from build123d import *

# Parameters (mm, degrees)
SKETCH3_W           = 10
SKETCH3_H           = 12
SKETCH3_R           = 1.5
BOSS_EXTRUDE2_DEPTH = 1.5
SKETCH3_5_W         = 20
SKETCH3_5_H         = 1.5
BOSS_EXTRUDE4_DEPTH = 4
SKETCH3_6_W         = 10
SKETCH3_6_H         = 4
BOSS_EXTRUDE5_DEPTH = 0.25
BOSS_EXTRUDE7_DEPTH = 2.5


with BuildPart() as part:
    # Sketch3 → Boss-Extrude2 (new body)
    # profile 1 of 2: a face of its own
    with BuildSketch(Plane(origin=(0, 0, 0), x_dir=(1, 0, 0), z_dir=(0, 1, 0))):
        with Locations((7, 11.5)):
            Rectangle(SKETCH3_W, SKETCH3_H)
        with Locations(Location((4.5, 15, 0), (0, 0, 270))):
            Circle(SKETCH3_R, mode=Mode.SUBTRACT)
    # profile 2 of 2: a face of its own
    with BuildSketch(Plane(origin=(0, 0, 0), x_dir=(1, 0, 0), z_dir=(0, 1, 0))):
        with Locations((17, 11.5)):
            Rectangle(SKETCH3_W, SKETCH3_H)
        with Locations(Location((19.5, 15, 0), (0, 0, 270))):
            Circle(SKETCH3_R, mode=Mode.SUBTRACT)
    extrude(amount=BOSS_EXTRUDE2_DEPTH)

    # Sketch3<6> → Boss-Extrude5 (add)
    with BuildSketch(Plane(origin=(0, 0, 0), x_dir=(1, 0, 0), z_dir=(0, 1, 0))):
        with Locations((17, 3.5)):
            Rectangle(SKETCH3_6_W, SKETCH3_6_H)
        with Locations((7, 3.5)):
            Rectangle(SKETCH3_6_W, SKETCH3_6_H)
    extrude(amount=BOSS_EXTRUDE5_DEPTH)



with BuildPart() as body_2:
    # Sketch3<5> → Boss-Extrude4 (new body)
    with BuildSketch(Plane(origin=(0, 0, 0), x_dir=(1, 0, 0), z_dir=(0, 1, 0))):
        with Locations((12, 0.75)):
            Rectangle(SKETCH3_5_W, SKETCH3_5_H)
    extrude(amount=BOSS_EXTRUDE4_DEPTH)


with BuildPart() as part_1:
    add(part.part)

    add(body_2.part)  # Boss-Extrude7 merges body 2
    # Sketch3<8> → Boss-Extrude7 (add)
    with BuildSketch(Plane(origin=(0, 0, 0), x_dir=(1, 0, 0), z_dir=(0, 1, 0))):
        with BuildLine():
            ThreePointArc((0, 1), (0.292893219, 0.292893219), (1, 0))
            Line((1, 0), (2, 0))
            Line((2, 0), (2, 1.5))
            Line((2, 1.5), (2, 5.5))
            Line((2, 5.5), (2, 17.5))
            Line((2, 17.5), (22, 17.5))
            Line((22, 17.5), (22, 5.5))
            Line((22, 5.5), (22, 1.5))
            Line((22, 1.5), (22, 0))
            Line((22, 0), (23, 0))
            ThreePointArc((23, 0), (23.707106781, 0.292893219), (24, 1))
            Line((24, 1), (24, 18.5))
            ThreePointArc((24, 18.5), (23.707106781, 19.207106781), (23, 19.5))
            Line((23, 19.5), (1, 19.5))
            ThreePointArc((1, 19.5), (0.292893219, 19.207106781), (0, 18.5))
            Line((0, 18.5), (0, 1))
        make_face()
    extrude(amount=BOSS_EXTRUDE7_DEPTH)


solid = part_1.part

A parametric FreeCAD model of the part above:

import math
import FreeCAD as App
import Part
import Sketcher
from FreeCAD import Vector
Q = App.Units.Quantity

doc = App.newDocument("Part")
params = doc.addObject("Spreadsheet::Sheet", "Params")
for row, (alias, value) in enumerate([
    ("sketch1_diameter", "3 mm"),
    ("sketch1_width", "20 mm"),
    ("sketch1_height", "12 mm"),
    ("pad1_length", "1.5 mm"),
    ("sketch2_width", "20 mm"),
    ("sketch2_height", "4 mm"),
    ("pad2_length", "0.25 mm"),
    ("sketch3_width", "20 mm"),
    ("sketch3_height", "1.5 mm"),
    ("pad3_length", "4 mm"),
    ("sketch4_radius", "1 mm"),
    ("sketch4_width", "1 mm"),
    ("sketch4_width2", "20 mm"),
    ("sketch4_height", "17.5 mm"),
    ("pad4_length", "2.5 mm"),
], start=1):
    params.set(f"A{row}", alias)
    params.set(f"B{row}", "=" + value)
    params.setAlias(f"B{row}", alias)

body = doc.addObject("PartDesign::Body", "Body")

# Sketch on XZ plane
sketch1 = body.newObject("Sketcher::SketchObject", "Sketch")
sketch1.AttachmentSupport = (doc.getObject("XZ_Plane"), [""])
sketch1.MapMode = "FlatFace"
sketch1.addGeometry(Part.LineSegment(Vector(2, -17.5, 0), Vector(2, -5.5, 0)), False)
sketch1.addGeometry(Part.LineSegment(Vector(2, -5.5, 0), Vector(22, -5.5, 0)), False)
sketch1.addGeometry(Part.LineSegment(Vector(22, -5.5, 0), Vector(22, -17.5, 0)), False)
sketch1.addGeometry(Part.LineSegment(Vector(22, -17.5, 0), Vector(2, -17.5, 0)), False)
sketch1.addGeometry(Part.Circle(Vector(4.5, -15, 0), Vector(0, 0, 1), 1.5), False)
sketch1.addGeometry(Part.Circle(Vector(19.5, -15, 0), Vector(0, 0, 1), 1.5), False)
sketch1.addConstraint(Sketcher.Constraint("Coincident", 0, 2, 1, 1))
sketch1.addConstraint(Sketcher.Constraint("Coincident", 1, 2, 2, 1))
sketch1.addConstraint(Sketcher.Constraint("Coincident", 2, 2, 3, 1))
sketch1.addConstraint(Sketcher.Constraint("Coincident", 3, 2, 0, 1))
sketch1.addConstraint(Sketcher.Constraint("Vertical", 0))
sketch1.addConstraint(Sketcher.Constraint("Horizontal", 1))
sketch1.addConstraint(Sketcher.Constraint("Vertical", 2))
sketch1.addConstraint(Sketcher.Constraint("Horizontal", 3))
sketch1.addConstraint(Sketcher.Constraint("Equal", 4, 5))
sketch1.addConstraint(Sketcher.Constraint("Horizontal", 4, 3, 5, 3))
sketch1.addConstraint(Sketcher.Constraint("Diameter", 4, Q("3 mm")))
sketch1.addConstraint(Sketcher.Constraint("DistanceX", 1, 1, 1, 2, Q("20 mm")))
sketch1.addConstraint(Sketcher.Constraint("DistanceY", 0, 1, 0, 2, Q("12 mm")))
sketch1.addConstraint(Sketcher.Constraint("DistanceY", 4, 3, -1, 1, Q("15 mm")))
sketch1.addConstraint(Sketcher.Constraint("DistanceX", -1, 1, 0, 2, Q("2 mm")))
sketch1.addConstraint(Sketcher.Constraint("DistanceX", 4, 3, 5, 3, Q("15 mm")))
sketch1.addConstraint(Sketcher.Constraint("DistanceX", -1, 1, 4, 3, Q("4.5 mm")))
sketch1.addConstraint(Sketcher.Constraint("DistanceY", 0, 2, -1, 1, Q("5.5 mm")))
sketch1.setExpression("Constraints[10]", "Params.sketch1_diameter")
sketch1.setExpression("Constraints[11]", "Params.sketch1_width")
sketch1.setExpression("Constraints[12]", "Params.sketch1_height")
pad1 = body.newObject("PartDesign::Pad", "Pad")
pad1.Profile = sketch1
pad1.setExpression("Length", "Params.pad1_length")
pad1.Reversed = True

# Sketch on XZ plane
sketch2 = body.newObject("Sketcher::SketchObject", "Sketch001")
sketch2.AttachmentSupport = (doc.getObject("XZ_Plane"), [""])
sketch2.MapMode = "FlatFace"
sketch2.addGeometry(Part.LineSegment(Vector(22, -1.5, 0), Vector(22, -5.5, 0)), False)
sketch2.addGeometry(Part.LineSegment(Vector(22, -5.5, 0), Vector(2, -5.5, 0)), False)
sketch2.addGeometry(Part.LineSegment(Vector(2, -5.5, 0), Vector(2, -1.5, 0)), False)
sketch2.addGeometry(Part.LineSegment(Vector(2, -1.5, 0), Vector(22, -1.5, 0)), False)
sketch2.addConstraint(Sketcher.Constraint("Coincident", 0, 2, 1, 1))
sketch2.addConstraint(Sketcher.Constraint("Coincident", 1, 2, 2, 1))
sketch2.addConstraint(Sketcher.Constraint("Coincident", 2, 2, 3, 1))
sketch2.addConstraint(Sketcher.Constraint("Coincident", 3, 2, 0, 1))
sketch2.addConstraint(Sketcher.Constraint("Vertical", 0))
sketch2.addConstraint(Sketcher.Constraint("Horizontal", 1))
sketch2.addConstraint(Sketcher.Constraint("Vertical", 2))
sketch2.addConstraint(Sketcher.Constraint("Horizontal", 3))
sketch2.addConstraint(Sketcher.Constraint("DistanceX", 1, 2, 1, 1, Q("20 mm")))
sketch2.addConstraint(Sketcher.Constraint("DistanceY", 0, 2, 0, 1, Q("4 mm")))
sketch2.addConstraint(Sketcher.Constraint("DistanceX", -1, 1, 0, 2, Q("22 mm")))
sketch2.addConstraint(Sketcher.Constraint("DistanceY", 0, 2, -1, 1, Q("5.5 mm")))
sketch2.setExpression("Constraints[8]", "Params.sketch2_width")
sketch2.setExpression("Constraints[9]", "Params.sketch2_height")
pad2 = body.newObject("PartDesign::Pad", "Pad001")
pad2.Profile = sketch2
pad2.setExpression("Length", "Params.pad2_length")
pad2.Reversed = True
body2 = doc.addObject("PartDesign::Body", "Body001")

# Sketch on XZ plane
sketch3 = body2.newObject("Sketcher::SketchObject", "Sketch002")
sketch3.AttachmentSupport = (doc.getObject("XZ_Plane001"), [""])
sketch3.MapMode = "FlatFace"
sketch3.addGeometry(Part.LineSegment(Vector(2, -1.5, 0), Vector(2, 0, 0)), False)
sketch3.addGeometry(Part.LineSegment(Vector(2, 0, 0), Vector(22, 0, 0)), False)
sketch3.addGeometry(Part.LineSegment(Vector(22, 0, 0), Vector(22, -1.5, 0)), False)
sketch3.addGeometry(Part.LineSegment(Vector(22, -1.5, 0), Vector(2, -1.5, 0)), False)
sketch3.addConstraint(Sketcher.Constraint("Coincident", 0, 2, 1, 1))
sketch3.addConstraint(Sketcher.Constraint("Coincident", 1, 2, 2, 1))
sketch3.addConstraint(Sketcher.Constraint("Coincident", 2, 2, 3, 1))
sketch3.addConstraint(Sketcher.Constraint("Coincident", 3, 2, 0, 1))
sketch3.addConstraint(Sketcher.Constraint("Vertical", 0))
sketch3.addConstraint(Sketcher.Constraint("Horizontal", 1))
sketch3.addConstraint(Sketcher.Constraint("Vertical", 2))
sketch3.addConstraint(Sketcher.Constraint("Horizontal", 3))
sketch3.addConstraint(Sketcher.Constraint("PointOnObject", 0, 2, -1))
sketch3.addConstraint(Sketcher.Constraint("DistanceX", 1, 1, 1, 2, Q("20 mm")))
sketch3.addConstraint(Sketcher.Constraint("DistanceY", 0, 1, 0, 2, Q("1.5 mm")))
sketch3.addConstraint(Sketcher.Constraint("DistanceX", -1, 1, 0, 2, Q("2 mm")))
sketch3.setExpression("Constraints[9]", "Params.sketch3_width")
sketch3.setExpression("Constraints[10]", "Params.sketch3_height")
pad3 = body2.newObject("PartDesign::Pad", "Pad002")
pad3.Profile = sketch3
pad3.setExpression("Length", "Params.pad3_length")
pad3.Reversed = True
doc.recompute()

boolean = body.newObject("PartDesign::Boolean", "Boolean")
boolean.Type = "Fuse"
boolean.addObjects([body2])

# Sketch on XZ plane
sketch4 = body.newObject("Sketcher::SketchObject", "Sketch003")
sketch4.AttachmentSupport = (doc.getObject("XZ_Plane"), [""])
sketch4.MapMode = "FlatFace"
sketch4.addGeometry(Part.ArcOfCircle(Part.Circle(Vector(1, -1, 0), Vector(0, 0, 1), 1), math.radians(90), math.radians(180)), False)
sketch4.addGeometry(Part.LineSegment(Vector(1, 0, 0), Vector(2, 0, 0)), False)
sketch4.addGeometry(Part.LineSegment(Vector(2, 0, 0), Vector(2, -17.5, 0)), False)
sketch4.addGeometry(Part.LineSegment(Vector(2, -17.5, 0), Vector(22, -17.5, 0)), False)
sketch4.addGeometry(Part.LineSegment(Vector(22, -17.5, 0), Vector(22, 0, 0)), False)
sketch4.addGeometry(Part.LineSegment(Vector(22, 0, 0), Vector(23, 0, 0)), False)
sketch4.addGeometry(Part.ArcOfCircle(Part.Circle(Vector(23, -1, 0), Vector(0, 0, 1), 1), math.radians(0), math.radians(90)), False)
sketch4.addGeometry(Part.LineSegment(Vector(24, -1, 0), Vector(24, -18.5, 0)), False)
sketch4.addGeometry(Part.ArcOfCircle(Part.Circle(Vector(23, -18.5, 0), Vector(0, 0, 1), 1), math.radians(-90), math.radians(0)), False)
sketch4.addGeometry(Part.LineSegment(Vector(23, -19.5, 0), Vector(1, -19.5, 0)), False)
sketch4.addGeometry(Part.ArcOfCircle(Part.Circle(Vector(1, -18.5, 0), Vector(0, 0, 1), 1), math.radians(-180), math.radians(-90)), False)
sketch4.addGeometry(Part.LineSegment(Vector(0, -18.5, 0), Vector(0, -1, 0)), False)
sketch4.addConstraint(Sketcher.Constraint("Tangent", 0, 1, 1, 1))
sketch4.addConstraint(Sketcher.Constraint("Coincident", 1, 2, 2, 1))
sketch4.addConstraint(Sketcher.Constraint("Coincident", 2, 2, 3, 1))
sketch4.addConstraint(Sketcher.Constraint("Coincident", 3, 2, 4, 1))
sketch4.addConstraint(Sketcher.Constraint("Coincident", 4, 2, 5, 1))
sketch4.addConstraint(Sketcher.Constraint("Tangent", 5, 2, 6, 2))
sketch4.addConstraint(Sketcher.Constraint("Tangent", 6, 1, 7, 1))
sketch4.addConstraint(Sketcher.Constraint("Tangent", 7, 2, 8, 2))
sketch4.addConstraint(Sketcher.Constraint("Tangent", 8, 1, 9, 1))
sketch4.addConstraint(Sketcher.Constraint("Tangent", 9, 2, 10, 2))
sketch4.addConstraint(Sketcher.Constraint("Tangent", 10, 1, 11, 1))
sketch4.addConstraint(Sketcher.Constraint("Tangent", 11, 2, 0, 2))
sketch4.addConstraint(Sketcher.Constraint("Horizontal", 1))
sketch4.addConstraint(Sketcher.Constraint("Vertical", 2))
sketch4.addConstraint(Sketcher.Constraint("Horizontal", 3))
sketch4.addConstraint(Sketcher.Constraint("Vertical", 4))
sketch4.addConstraint(Sketcher.Constraint("Horizontal", 5))
sketch4.addConstraint(Sketcher.Constraint("Vertical", 7))
sketch4.addConstraint(Sketcher.Constraint("Horizontal", 9))
sketch4.addConstraint(Sketcher.Constraint("Vertical", 11))
sketch4.addConstraint(Sketcher.Constraint("Equal", 0, 6))
sketch4.addConstraint(Sketcher.Constraint("Equal", 6, 8))
sketch4.addConstraint(Sketcher.Constraint("Equal", 8, 10))
sketch4.addConstraint(Sketcher.Constraint("PointOnObject", 0, 1, -1))
sketch4.addConstraint(Sketcher.Constraint("PointOnObject", 4, 2, -1))
sketch4.addConstraint(Sketcher.Constraint("PointOnObject", 10, 1, -2))
sketch4.addConstraint(Sketcher.Constraint("Equal", 1, 5))
sketch4.addConstraint(Sketcher.Constraint("Equal", 4, 7))
sketch4.addConstraint(Sketcher.Constraint("Radius", 0, Q("1 mm")))
sketch4.addConstraint(Sketcher.Constraint("DistanceX", 1, 1, 1, 2, Q("1 mm")))
sketch4.addConstraint(Sketcher.Constraint("DistanceX", 3, 1, 3, 2, Q("20 mm")))
sketch4.addConstraint(Sketcher.Constraint("DistanceY", 2, 2, 2, 1, Q("17.5 mm")))
sketch4.setExpression("Constraints[28]", "Params.sketch4_radius")
sketch4.setExpression("Constraints[29]", "Params.sketch4_width")
sketch4.setExpression("Constraints[30]", "Params.sketch4_width2")
sketch4.setExpression("Constraints[31]", "Params.sketch4_height")
pad4 = body.newObject("PartDesign::Pad", "Pad003")
pad4.Profile = sketch4
pad4.setExpression("Length", "Params.pad4_length")
pad4.Reversed = True

doc.recompute()
